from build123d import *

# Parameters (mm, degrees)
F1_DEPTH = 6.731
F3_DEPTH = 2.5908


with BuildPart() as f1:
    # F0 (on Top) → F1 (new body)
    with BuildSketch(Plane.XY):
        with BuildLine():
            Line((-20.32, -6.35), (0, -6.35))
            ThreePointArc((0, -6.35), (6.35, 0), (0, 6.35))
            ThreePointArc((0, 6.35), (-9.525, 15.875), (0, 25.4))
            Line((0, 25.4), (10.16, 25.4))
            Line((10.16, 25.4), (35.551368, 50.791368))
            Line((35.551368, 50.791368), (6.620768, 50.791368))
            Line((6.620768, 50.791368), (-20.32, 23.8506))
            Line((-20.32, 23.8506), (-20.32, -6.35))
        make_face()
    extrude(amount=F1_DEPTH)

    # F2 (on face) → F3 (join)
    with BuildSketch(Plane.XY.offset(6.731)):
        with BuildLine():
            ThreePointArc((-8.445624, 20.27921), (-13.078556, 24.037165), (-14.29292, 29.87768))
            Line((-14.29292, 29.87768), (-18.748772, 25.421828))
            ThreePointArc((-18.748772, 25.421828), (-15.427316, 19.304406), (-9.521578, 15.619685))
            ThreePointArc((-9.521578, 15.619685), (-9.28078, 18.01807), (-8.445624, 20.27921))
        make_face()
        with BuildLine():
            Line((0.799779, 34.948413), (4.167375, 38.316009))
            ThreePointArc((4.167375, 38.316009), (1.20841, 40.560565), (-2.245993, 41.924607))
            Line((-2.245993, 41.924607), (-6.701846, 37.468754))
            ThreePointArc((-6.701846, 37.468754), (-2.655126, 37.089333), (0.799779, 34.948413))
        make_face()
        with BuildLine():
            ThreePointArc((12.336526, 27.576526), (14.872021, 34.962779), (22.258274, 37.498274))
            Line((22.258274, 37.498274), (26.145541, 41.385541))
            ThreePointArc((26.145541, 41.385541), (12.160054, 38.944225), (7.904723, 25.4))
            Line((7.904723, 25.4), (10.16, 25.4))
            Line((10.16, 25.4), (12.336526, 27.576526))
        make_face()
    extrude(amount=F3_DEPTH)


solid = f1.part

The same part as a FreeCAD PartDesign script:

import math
import FreeCAD as App
import Part
import Sketcher
Q = App.Units.Quantity

doc = App.newDocument("Part")
body = doc.addObject("PartDesign::Body", "Body")

# Sketch on XY plane
sketch1 = body.newObject("Sketcher::SketchObject", "Sketch")
sketch1.AttachmentSupport = (doc.getObject("XY_Plane"), [""])
sketch1.MapMode = "FlatFace"
sketch1.addGeometry([
    Part.LineSegment(App.Vector(-20, -6, 0), App.Vector(0, -6, 0)),  # 0
    Part.ArcOfCircle(Part.Circle(App.Vector(0, 0, 0), App.Vector(0, 0, 1), 6), math.radians(-90), math.radians(90)),  # 1
    Part.ArcOfCircle(Part.Circle(App.Vector(0, 16, 0), App.Vector(0, 0, 1), 10), math.radians(90), math.radians(270)),  # 2
    Part.LineSegment(App.Vector(0, 25, 0), App.Vector(10, 25, 0)),  # 3
    Part.LineSegment(App.Vector(10, 25, 0), App.Vector(36, 51, 0)),  # 4
    Part.LineSegment(App.Vector(36, 51, 0), App.Vector(7, 51, 0)),  # 5
    Part.LineSegment(App.Vector(7, 51, 0), App.Vector(-20, 24, 0)),  # 6
    Part.LineSegment(App.Vector(-20, 24, 0), App.Vector(-20, -6, 0)),  # 7
], False)
sketch1.addConstraint([
    Sketcher.Constraint("Tangent", 0, 2, 1, 1),
    Sketcher.Constraint("Tangent", 1, 2, 2, 2),
    Sketcher.Constraint("Tangent", 2, 1, 3, 1),
    Sketcher.Constraint("Coincident", 3, 2, 4, 1),
    Sketcher.Constraint("Coincident", 4, 2, 5, 1),
    Sketcher.Constraint("Coincident", 5, 2, 6, 1),
    Sketcher.Constraint("Coincident", 6, 2, 7, 1),
    Sketcher.Constraint("Coincident", 7, 2, 0, 1),
    Sketcher.Constraint("Horizontal", 0),
    Sketcher.Constraint("Horizontal", 3),
    Sketcher.Constraint("Horizontal", 5),
    Sketcher.Constraint("Vertical", 7),
    Sketcher.Constraint("Coincident", 1, 3, -1, 1),
    Sketcher.Constraint("PointOnObject", 2, 3, -2),
    Sketcher.Constraint("Parallel", 4, 6),
    Sketcher.Constraint("Radius", 1, Q("0.25 in")),
    Sketcher.Constraint("DistanceX", 0, 1, 0, 2, Q("0.8 in")),
    Sketcher.Constraint("DistanceX", 3, 1, 3, 2, Q("0.4 in")),
    Sketcher.Constraint("DistanceY", -1, 1, 2, 1, Q("1 in")),
    Sketcher.Constraint("Angle", 4, Q("45 deg")),
    Sketcher.Constraint("Distance", 6, Q("1.5 in")),
    Sketcher.Constraint("DistanceX", 5, 2, 5, 1, Q("1.139 in")),
])
pad1 = body.newObject("PartDesign::Pad", "Pad")
pad1.Profile = sketch1
pad1.Length = Q("0.265 in")

# Sketch on XY plane
sketch2 = body.newObject("Sketcher::SketchObject", "Sketch001")
sketch2.AttachmentSupport = (doc.getObject("XY_Plane"), [""])
sketch2.MapMode = "FlatFace"
sketch2.AttachmentOffset = App.Placement(App.Vector(0, 0, 0.265 * 25.4), App.Rotation())
sketch2.addGeometry([
    Part.ArcOfCircle(Part.Circle(App.Vector(-5.5, 28.7, 0), App.Vector(0, 0, 1), 8.9), math.radians(172), math.radians(251)),  # 0
    Part.LineSegment(App.Vector(-14.3, 29.9, 0), App.Vector(-18.7, 25.4, 0)),  # 1
    Part.ArcOfCircle(Part.Circle(App.Vector(-5.5, 28.7, 0), App.Vector(0, 0, 1), 13.7), math.radians(-166), math.radians(-107)),  # 2
    Part.ArcOfCircle(Part.Circle(App.Vector(0, 15.9, 0), App.Vector(0, 0, 1), 9.5), math.radians(152), math.radians(182)),  # 3
    Part.LineSegment(App.Vector(0.8, 34.9, 0), App.Vector(4.2, 38.3, 0)),  # 4
    Part.ArcOfCircle(Part.Circle(App.Vector(-5.5, 28.7, 0), App.Vector(0, 0, 1), 13.7), math.radians(45), math.radians(76)),  # 5
    Part.LineSegment(App.Vector(-2.2, 41.9, 0), App.Vector(-6.7, 37.5, 0)),  # 6
    Part.ArcOfCircle(Part.Circle(App.Vector(-5.5, 28.7, 0), App.Vector(0, 0, 1), 8.9), math.radians(45), math.radians(98)),  # 7
    Part.ArcOfCircle(Part.Circle(App.Vector(21.2, 28.7, 0), App.Vector(0, 0, 1), 8.9), math.radians(83), math.radians(187)),  # 8
    Part.LineSegment(App.Vector(22.3, 37.5, 0), App.Vector(26.1, 41.4, 0)),  # 9
    Part.ArcOfCircle(Part.Circle(App.Vector(21.2, 28.7, 0), App.Vector(0, 0, 1), 13.7), math.radians(69), math.radians(194)),  # 10
    Part.LineSegment(App.Vector(7.9, 25.4, 0), App.Vector(10.2, 25.4, 0)),  # 11
    Part.LineSegment(App.Vector(10.2, 25.4, 0), App.Vector(12.3, 27.6, 0)),  # 12
], False)
sketch2.addConstraint([
    Sketcher.Constraint("Coincident", 0, 1, 1, 1),
    Sketcher.Constraint("Coincident", 1, 2, 2, 1),
    Sketcher.Constraint("Coincident", 2, 2, 3, 2),
    Sketcher.Constraint("Coincident", 3, 1, 0, 2),
    Sketcher.Constraint("Coincident", 4, 2, 5, 1),
    Sketcher.Constraint("Coincident", 5, 2, 6, 1),
    Sketcher.Constraint("Coincident", 6, 2, 7, 2),
    Sketcher.Constraint("Coincident", 7, 1, 4, 1),
    Sketcher.Constraint("Coincident", 8, 1, 9, 1),
    Sketcher.Constraint("Coincident", 9, 2, 10, 1),
    Sketcher.Constraint("Coincident", 10, 2, 11, 1),
    Sketcher.Constraint("Coincident", 11, 2, 12, 1),
    Sketcher.Constraint("Coincident", 12, 2, 8, 2),
    Sketcher.Constraint("Horizontal", 11),
    Sketcher.Constraint("Coincident", 2, 3, 0, 3),
    Sketcher.Constraint("Coincident", 5, 3, 0, 3),
    Sketcher.Constraint("Coincident", 7, 3, 0, 3),
    Sketcher.Constraint("Coincident", 10, 3, 8, 3),
    Sketcher.Constraint("Equal", 2, 5),
    Sketcher.Constraint("Equal", 0, 8),
    Sketcher.Constraint("Parallel", 1, 4),
    Sketcher.Constraint("Parallel", 4, 6),
    Sketcher.Constraint("Parallel", 6, 9),
    Sketcher.Constraint("Parallel", 9, 12),
    Sketcher.Constraint("Equal", 1, 6),
    Sketcher.Constraint("Radius", 0, Q("0.35 in")),
    Sketcher.Constraint("DistanceY", -1, 1, 10, 2, Q("1 in")),
    Sketcher.Constraint("Angle", 1, Q("-135 deg")),
    Sketcher.Constraint("DistanceX", -1, 1, 11, 2, Q("0.4 in")),
    Sketcher.Constraint("Radius", 2, Q("0.5374999 in")),
    Sketcher.Constraint("Radius", 10, Q("0.5375 in")),
    Sketcher.Constraint("Distance", 4, Q("0.1875 in")),
    Sketcher.Constraint("DistanceX", 0, 3, -1, 1, Q("0.216 in")),
    Sketcher.Constraint("DistanceY", -1, 1, 3, 3, Q("0.6249999 in")),
    Sketcher.Constraint("DistanceX", -1, 1, 8, 3, Q("0.833 in")),
    Sketcher.Constraint("DistanceY", -1, 1, 8, 3, Q("1.129 in")),
    Sketcher.Constraint("Radius", 3, 9.525009),
    Sketcher.Constraint("DistanceX", 4, 2, 8, 1, 18.090899),
    Sketcher.Constraint("DistanceY", -1, 1, 2, 3, 28.662232),
    Sketcher.Constraint("DistanceX", 0, 1, -1, 1, 14.29292),
    Sketcher.Constraint("DistanceY", -1, 1, 3, 1, 20.27921),
    Sketcher.Constraint("DistanceY", -1, 1, 4, 2, 38.316009),
])
pad2 = body.newObject("PartDesign::Pad", "Pad001")
pad2.Profile = sketch2
pad2.Length = Q("0.102 in")

doc.recompute()
